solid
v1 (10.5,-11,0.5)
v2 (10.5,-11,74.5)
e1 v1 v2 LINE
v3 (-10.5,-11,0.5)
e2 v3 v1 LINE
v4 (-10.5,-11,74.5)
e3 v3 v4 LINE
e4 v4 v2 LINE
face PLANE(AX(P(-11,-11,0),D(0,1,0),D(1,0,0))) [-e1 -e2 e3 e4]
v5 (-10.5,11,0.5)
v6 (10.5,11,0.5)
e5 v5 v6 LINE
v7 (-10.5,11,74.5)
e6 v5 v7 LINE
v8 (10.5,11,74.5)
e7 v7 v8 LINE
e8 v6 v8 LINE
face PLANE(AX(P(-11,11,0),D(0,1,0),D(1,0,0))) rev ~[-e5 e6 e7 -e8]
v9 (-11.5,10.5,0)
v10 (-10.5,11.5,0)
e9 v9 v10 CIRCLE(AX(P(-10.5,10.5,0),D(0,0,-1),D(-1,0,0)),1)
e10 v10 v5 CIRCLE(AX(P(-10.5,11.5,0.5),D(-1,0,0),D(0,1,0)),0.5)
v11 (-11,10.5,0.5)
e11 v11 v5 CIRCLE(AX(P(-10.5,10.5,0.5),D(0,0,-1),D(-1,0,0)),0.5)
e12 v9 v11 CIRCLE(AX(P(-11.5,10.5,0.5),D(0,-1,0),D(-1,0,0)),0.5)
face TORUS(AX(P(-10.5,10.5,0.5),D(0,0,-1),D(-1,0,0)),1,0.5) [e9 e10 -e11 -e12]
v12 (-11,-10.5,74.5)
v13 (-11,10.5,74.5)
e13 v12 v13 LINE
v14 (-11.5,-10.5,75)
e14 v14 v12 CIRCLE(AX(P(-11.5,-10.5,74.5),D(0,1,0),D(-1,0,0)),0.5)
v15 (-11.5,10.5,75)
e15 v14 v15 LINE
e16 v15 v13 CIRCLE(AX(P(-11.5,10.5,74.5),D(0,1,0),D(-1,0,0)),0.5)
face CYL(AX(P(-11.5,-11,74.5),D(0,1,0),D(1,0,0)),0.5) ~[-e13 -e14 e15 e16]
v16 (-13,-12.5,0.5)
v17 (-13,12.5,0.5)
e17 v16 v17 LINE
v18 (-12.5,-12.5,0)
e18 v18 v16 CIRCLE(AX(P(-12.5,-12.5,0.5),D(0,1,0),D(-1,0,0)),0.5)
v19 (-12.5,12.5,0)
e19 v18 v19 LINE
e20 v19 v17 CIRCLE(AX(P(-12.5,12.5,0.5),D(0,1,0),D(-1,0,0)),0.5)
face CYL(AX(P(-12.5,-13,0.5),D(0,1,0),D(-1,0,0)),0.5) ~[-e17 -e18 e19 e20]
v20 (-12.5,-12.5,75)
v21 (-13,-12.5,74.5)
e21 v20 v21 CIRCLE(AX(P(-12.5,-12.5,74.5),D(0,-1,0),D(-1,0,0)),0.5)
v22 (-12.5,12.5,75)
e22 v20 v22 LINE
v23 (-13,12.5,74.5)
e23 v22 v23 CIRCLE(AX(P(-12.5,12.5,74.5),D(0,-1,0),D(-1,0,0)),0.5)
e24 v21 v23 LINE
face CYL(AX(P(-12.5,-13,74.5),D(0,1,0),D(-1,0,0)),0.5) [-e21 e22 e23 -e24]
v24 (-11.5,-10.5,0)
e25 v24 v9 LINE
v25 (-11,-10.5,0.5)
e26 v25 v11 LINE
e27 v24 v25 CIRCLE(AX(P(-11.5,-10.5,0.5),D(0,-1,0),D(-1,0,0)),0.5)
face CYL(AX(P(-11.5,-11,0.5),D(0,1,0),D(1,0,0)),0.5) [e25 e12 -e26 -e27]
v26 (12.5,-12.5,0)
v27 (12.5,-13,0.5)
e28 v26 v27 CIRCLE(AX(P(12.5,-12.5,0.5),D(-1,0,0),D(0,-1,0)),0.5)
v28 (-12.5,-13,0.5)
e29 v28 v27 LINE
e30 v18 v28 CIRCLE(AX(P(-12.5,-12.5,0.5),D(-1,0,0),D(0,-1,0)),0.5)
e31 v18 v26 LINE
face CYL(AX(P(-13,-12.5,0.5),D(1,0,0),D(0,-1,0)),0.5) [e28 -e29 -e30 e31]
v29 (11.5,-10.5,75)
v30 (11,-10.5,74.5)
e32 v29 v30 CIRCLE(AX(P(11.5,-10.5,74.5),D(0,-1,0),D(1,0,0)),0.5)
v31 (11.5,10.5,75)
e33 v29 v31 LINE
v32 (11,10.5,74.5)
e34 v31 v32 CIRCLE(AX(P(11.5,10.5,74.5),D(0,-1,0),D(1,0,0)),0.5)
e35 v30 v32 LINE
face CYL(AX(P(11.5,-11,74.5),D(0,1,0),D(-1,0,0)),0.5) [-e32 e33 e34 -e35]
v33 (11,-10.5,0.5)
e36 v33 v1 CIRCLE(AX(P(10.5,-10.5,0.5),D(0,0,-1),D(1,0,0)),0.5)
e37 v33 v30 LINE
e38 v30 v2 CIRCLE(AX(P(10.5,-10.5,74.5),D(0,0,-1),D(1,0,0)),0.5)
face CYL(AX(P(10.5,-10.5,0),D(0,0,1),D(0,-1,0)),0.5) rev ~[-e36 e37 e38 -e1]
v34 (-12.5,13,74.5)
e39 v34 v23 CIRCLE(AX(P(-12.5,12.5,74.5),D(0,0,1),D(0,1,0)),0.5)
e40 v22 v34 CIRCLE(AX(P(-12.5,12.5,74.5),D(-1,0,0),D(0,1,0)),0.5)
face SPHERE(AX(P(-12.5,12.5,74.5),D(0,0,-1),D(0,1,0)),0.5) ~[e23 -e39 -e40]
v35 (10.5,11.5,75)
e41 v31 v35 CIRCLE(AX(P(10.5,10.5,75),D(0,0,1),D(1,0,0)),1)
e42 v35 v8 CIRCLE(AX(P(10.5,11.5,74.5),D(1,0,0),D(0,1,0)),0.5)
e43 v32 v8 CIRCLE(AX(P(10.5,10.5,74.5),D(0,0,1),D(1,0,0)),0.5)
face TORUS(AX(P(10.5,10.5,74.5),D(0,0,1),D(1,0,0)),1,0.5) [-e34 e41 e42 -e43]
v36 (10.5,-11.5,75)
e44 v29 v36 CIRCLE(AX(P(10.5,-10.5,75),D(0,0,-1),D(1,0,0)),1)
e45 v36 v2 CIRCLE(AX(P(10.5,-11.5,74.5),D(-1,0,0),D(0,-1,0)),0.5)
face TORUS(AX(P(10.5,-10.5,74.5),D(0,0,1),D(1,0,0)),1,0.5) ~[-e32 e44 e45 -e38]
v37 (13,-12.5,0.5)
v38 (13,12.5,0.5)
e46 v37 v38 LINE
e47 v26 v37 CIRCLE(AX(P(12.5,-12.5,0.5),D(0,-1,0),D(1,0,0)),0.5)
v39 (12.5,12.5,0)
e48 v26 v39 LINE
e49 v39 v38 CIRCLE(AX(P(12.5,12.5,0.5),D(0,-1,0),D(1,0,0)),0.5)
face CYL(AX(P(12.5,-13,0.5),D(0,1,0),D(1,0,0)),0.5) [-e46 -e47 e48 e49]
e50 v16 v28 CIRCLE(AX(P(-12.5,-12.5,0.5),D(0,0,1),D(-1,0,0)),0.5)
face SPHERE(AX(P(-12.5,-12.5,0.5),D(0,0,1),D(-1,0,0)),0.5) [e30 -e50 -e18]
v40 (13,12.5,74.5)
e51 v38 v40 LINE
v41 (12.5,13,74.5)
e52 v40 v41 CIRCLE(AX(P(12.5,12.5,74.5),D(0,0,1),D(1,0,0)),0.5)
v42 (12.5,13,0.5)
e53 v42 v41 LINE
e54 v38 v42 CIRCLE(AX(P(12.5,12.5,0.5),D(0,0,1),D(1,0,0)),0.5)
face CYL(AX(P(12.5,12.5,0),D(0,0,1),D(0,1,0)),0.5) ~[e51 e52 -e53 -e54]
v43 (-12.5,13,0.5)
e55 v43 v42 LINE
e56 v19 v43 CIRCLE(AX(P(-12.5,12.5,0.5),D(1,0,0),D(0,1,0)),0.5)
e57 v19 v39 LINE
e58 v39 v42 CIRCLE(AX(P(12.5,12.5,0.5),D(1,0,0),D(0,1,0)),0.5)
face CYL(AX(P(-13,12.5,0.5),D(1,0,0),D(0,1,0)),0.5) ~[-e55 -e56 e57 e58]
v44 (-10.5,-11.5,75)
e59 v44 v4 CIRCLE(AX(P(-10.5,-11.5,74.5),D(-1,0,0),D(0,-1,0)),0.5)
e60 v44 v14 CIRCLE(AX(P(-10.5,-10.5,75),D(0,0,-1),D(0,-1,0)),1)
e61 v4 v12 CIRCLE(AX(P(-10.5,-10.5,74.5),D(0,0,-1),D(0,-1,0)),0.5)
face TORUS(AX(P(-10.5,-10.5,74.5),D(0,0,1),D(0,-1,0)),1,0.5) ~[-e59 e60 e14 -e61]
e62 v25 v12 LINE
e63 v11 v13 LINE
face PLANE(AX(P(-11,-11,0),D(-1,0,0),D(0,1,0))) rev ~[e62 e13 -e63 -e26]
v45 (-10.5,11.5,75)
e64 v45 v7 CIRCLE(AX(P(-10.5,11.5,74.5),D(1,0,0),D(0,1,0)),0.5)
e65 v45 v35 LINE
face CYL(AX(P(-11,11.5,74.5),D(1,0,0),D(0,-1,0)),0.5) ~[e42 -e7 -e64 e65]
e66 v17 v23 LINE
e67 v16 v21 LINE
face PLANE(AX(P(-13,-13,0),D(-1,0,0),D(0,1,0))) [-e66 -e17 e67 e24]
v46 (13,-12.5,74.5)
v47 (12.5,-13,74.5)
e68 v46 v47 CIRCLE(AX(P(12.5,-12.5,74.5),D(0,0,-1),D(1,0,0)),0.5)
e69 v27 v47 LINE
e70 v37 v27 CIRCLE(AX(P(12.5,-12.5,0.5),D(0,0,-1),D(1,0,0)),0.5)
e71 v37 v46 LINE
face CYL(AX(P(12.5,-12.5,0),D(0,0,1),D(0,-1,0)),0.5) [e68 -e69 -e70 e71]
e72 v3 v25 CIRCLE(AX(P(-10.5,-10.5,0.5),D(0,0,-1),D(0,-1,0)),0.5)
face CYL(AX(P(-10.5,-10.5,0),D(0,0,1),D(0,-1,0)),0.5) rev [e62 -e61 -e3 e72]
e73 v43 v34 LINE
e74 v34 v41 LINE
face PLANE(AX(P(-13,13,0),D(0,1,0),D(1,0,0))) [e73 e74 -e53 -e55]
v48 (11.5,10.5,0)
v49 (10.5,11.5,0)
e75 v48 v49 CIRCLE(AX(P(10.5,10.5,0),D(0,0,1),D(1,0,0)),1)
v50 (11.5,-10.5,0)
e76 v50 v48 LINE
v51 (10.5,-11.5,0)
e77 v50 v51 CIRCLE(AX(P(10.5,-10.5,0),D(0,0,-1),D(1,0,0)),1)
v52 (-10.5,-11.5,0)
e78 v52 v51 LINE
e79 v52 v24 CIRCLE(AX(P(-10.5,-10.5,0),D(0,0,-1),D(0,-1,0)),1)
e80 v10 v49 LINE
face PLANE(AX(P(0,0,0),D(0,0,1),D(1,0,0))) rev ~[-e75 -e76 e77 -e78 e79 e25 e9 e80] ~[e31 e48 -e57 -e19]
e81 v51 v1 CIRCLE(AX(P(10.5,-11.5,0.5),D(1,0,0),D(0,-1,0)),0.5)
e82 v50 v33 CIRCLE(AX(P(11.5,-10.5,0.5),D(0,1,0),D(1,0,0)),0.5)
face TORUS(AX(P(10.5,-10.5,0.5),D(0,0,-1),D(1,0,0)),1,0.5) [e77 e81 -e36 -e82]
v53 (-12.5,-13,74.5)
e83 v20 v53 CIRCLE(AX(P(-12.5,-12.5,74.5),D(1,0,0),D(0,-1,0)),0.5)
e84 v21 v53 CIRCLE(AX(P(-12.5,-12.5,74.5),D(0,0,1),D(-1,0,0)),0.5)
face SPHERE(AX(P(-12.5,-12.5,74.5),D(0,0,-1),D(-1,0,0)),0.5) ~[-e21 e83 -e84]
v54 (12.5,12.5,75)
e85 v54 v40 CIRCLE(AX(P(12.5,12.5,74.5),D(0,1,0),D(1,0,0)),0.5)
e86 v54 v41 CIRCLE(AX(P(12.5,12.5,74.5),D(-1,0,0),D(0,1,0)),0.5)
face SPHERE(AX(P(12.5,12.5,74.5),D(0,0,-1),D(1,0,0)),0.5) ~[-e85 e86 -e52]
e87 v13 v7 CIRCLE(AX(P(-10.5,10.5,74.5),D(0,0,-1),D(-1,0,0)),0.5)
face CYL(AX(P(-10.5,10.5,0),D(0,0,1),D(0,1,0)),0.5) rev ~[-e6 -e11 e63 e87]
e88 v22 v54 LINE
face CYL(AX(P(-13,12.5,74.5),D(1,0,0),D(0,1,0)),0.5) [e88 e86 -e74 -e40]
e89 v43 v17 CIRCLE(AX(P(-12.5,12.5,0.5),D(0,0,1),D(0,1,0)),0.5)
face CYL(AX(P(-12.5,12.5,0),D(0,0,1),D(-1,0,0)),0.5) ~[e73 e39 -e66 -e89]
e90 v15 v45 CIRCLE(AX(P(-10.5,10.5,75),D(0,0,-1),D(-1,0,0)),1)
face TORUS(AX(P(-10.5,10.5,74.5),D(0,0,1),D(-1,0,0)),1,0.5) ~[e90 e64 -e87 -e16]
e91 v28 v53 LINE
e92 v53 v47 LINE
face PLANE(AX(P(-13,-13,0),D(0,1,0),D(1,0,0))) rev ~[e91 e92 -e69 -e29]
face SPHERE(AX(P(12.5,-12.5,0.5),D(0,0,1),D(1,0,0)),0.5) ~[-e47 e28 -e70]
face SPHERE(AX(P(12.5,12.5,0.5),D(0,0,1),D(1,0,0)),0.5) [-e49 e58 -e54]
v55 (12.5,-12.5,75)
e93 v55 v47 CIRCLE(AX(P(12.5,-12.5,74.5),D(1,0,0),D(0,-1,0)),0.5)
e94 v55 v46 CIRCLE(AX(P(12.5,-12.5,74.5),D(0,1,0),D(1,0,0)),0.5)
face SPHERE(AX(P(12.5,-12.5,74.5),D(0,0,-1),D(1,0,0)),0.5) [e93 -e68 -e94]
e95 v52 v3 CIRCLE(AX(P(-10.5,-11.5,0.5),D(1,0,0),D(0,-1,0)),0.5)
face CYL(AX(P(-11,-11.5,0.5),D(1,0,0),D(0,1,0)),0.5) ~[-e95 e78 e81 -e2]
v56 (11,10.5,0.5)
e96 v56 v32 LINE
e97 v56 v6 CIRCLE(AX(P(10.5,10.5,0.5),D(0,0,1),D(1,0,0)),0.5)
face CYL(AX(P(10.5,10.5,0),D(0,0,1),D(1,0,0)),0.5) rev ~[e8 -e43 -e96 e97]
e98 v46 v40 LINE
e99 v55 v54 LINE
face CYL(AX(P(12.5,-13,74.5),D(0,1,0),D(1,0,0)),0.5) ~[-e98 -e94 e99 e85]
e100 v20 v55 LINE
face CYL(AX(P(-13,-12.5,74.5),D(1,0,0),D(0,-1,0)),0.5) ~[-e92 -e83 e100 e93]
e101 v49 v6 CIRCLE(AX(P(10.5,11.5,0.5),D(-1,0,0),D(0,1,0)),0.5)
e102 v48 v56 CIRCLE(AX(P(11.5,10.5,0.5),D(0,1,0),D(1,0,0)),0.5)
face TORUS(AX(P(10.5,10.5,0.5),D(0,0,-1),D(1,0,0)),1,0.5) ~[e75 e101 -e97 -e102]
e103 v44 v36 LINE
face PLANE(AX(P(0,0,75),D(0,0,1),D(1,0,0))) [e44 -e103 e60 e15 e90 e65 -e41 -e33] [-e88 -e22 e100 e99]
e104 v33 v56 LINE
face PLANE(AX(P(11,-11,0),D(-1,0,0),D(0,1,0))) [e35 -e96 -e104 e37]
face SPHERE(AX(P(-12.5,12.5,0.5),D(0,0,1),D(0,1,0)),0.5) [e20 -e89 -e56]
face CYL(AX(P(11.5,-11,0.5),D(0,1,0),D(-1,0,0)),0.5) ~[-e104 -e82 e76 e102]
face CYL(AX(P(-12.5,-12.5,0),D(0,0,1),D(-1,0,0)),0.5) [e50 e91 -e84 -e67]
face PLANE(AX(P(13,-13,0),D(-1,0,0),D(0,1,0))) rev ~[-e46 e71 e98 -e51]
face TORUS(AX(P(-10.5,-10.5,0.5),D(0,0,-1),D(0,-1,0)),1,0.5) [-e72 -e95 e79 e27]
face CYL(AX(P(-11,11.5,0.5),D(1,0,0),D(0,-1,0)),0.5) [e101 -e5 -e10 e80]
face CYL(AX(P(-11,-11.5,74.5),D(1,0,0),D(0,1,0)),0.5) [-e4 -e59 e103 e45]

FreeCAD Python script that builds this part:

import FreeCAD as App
import Part
import Sketcher
from FreeCAD import Vector


def add_polygon(sketch, points):
    """Adds a closed chain of lines whose ends are joined by coincident constraints."""
    first, n = sketch.GeometryCount, len(points)
    for a, b in zip(points, points[1:] + points[:1]):
        sketch.addGeometry(Part.LineSegment(App.Vector(*a, 0), App.Vector(*b, 0)), False)
    for i in range(n):
        sketch.addConstraint(Sketcher.Constraint("Coincident", first + i, 2, first + (i + 1) % n, 1))

doc = App.newDocument("Part")
body = doc.addObject("PartDesign::Body", "Body")

# Sketch on XY plane
sketch1 = body.newObject("Sketcher::SketchObject", "Sketch")
sketch1.AttachmentSupport = (doc.getObject("XY_Plane"), [""])
sketch1.MapMode = "FlatFace"
add_polygon(sketch1, [(-13, 13), (-13, -13), (13, -13), (13, 13)])  # lines 0-3
add_polygon(sketch1, [(11, -11), (-11, -11), (-11, 11), (11, 11)])  # lines 4-7
sketch1.addConstraint(Sketcher.Constraint("Vertical", 0))
sketch1.addConstraint(Sketcher.Constraint("Horizontal", 1))
sketch1.addConstraint(Sketcher.Constraint("Vertical", 2))
sketch1.addConstraint(Sketcher.Constraint("Horizontal", 3))
sketch1.addConstraint(Sketcher.Constraint("Horizontal", 4))
sketch1.addConstraint(Sketcher.Constraint("Vertical", 5))
sketch1.addConstraint(Sketcher.Constraint("Horizontal", 6))
sketch1.addConstraint(Sketcher.Constraint("Vertical", 7))
sketch1.addConstraint(Sketcher.Constraint("Symmetric", 0, 2, 2, 2, -1, 1))
sketch1.addConstraint(Sketcher.Constraint("Symmetric", 4, 2, 6, 2, -1, 1))
sketch1.addConstraint(Sketcher.Constraint("Equal", 3, 0))
sketch1.addConstraint(Sketcher.Constraint("Equal", 6, 5))
sketch1.addConstraint(Sketcher.Constraint("DistanceX", 1, 1, 1, 2, 26.0))
sketch1.addConstraint(Sketcher.Constraint("DistanceX", 4, 2, 4, 1, 22.0))
pad1 = body.newObject("PartDesign::Pad", "Pad")
pad1.Profile = sketch1
pad1.Length = 75
doc.recompute()

fillet = body.newObject("PartDesign::Fillet", "Fillet")
fillet.Base = (pad1, ["Edge1"])
fillet.UseAllEdges = True
fillet.Radius = 0.5

doc.recompute()
